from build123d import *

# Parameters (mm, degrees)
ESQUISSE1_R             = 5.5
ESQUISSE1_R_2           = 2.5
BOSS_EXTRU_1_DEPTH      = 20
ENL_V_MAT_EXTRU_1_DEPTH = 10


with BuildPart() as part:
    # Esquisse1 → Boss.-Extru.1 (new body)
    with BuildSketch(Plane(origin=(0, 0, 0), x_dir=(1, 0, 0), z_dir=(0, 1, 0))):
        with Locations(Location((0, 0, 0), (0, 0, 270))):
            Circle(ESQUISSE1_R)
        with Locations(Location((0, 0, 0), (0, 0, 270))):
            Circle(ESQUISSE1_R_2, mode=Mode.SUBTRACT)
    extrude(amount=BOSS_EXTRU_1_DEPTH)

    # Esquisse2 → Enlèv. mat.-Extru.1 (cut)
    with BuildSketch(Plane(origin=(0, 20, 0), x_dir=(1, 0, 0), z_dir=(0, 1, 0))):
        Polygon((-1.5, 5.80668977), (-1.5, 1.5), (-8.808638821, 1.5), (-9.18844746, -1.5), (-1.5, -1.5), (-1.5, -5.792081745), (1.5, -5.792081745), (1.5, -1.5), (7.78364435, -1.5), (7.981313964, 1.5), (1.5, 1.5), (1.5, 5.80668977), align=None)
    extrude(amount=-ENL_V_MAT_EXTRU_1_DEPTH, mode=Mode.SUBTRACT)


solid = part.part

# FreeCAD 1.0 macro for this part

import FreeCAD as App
import Part
import Sketcher

V = App.Vector

doc = App.newDocument("Part")
body = doc.addObject("PartDesign::Body", "Body")

# Sketch on XZ plane
sketch1 = body.newObject("Sketcher::SketchObject", "Sketch")
sketch1.AttachmentSupport = (doc.getObject("XZ_Plane"), [""])
sketch1.MapMode = "FlatFace"
sketch1.addGeometry([
    Part.Circle(V(0, 0, 0), V(0, 0, 1), 5.5),
    Part.Circle(V(0, 0, 0), V(0, 0, 1), 2.5),
], False)
sketch1.addConstraint([
    Sketcher.Constraint("Coincident", 0, 3, -1, 1),
    Sketcher.Constraint("Coincident", 1, 3, -1, 1),
    Sketcher.Constraint("Diameter", 0, 11.0),
    Sketcher.Constraint("Diameter", 1, 5.0),
])
pad1 = body.newObject("PartDesign::Pad", "Pad")
pad1.Profile = sketch1
pad1.Length = 20
pad1.Reversed = True

# Sketch on XZ plane
sketch2 = body.newObject("Sketcher::SketchObject", "Sketch001")
sketch2.AttachmentSupport = (doc.getObject("XZ_Plane"), [""])
sketch2.MapMode = "FlatFace"
sketch2.AttachmentOffset = App.Placement(V(0, 0, -20), App.Rotation())
sketch2.addGeometry([
    Part.LineSegment(V(-1.5, -5.8, 0), V(-1.5, -1.5, 0)),  # 0
    Part.LineSegment(V(-1.5, -1.5, 0), V(-8.8, -1.5, 0)),  # 1
    Part.LineSegment(V(-8.8, -1.5, 0), V(-9.2, 1.5, 0)),  # 2
    Part.LineSegment(V(-9.2, 1.5, 0), V(-1.5, 1.5, 0)),  # 3
    Part.LineSegment(V(-1.5, 1.5, 0), V(-1.5, 5.8, 0)),  # 4
    Part.LineSegment(V(-1.5, 5.8, 0), V(1.5, 5.8, 0)),  # 5
    Part.LineSegment(V(1.5, 5.8, 0), V(1.5, 1.5, 0)),  # 6
    Part.LineSegment(V(1.5, 1.5, 0), V(7.8, 1.5, 0)),  # 7
    Part.LineSegment(V(7.8, 1.5, 0), V(8, -1.5, 0)),  # 8
    Part.LineSegment(V(8, -1.5, 0), V(1.5, -1.5, 0)),  # 9
    Part.LineSegment(V(1.5, -1.5, 0), V(1.5, -5.8, 0)),  # 10
    Part.LineSegment(V(1.5, -5.8, 0), V(-1.5, -5.8, 0)),  # 11
], False)
sketch2.addConstraint([
    Sketcher.Constraint("Coincident", 0, 2, 1, 1),
    Sketcher.Constraint("Coincident", 1, 2, 2, 1),
    Sketcher.Constraint("Coincident", 2, 2, 3, 1),
    Sketcher.Constraint("Coincident", 3, 2, 4, 1),
    Sketcher.Constraint("Coincident", 4, 2, 5, 1),
    Sketcher.Constraint("Coincident", 5, 2, 6, 1),
    Sketcher.Constraint("Coincident", 6, 2, 7, 1),
    Sketcher.Constraint("Coincident", 7, 2, 8, 1),
    Sketcher.Constraint("Coincident", 8, 2, 9, 1),
    Sketcher.Constraint("Coincident", 9, 2, 10, 1),
    Sketcher.Constraint("Coincident", 10, 2, 11, 1),
    Sketcher.Constraint("Coincident", 11, 2, 0, 1),
    Sketcher.Constraint("Vertical", 0),
    Sketcher.Constraint("Horizontal", 1),
    Sketcher.Constraint("Horizontal", 3),
    Sketcher.Constraint("Vertical", 4),
    Sketcher.Constraint("Horizontal", 5),
    Sketcher.Constraint("Vertical", 6),
    Sketcher.Constraint("Horizontal", 7),
    Sketcher.Constraint("Horizontal", 9),
    Sketcher.Constraint("Vertical", 10),
    Sketcher.Constraint("Horizontal", 11),
    Sketcher.Constraint("Symmetric", 0, 2, 6, 2, -1, 1),
    Sketcher.Constraint("Symmetric", 3, 2, 9, 2, -1, 1),
    Sketcher.Constraint("Symmetric", 3, 2, 6, 2, -2),
    Sketcher.Constraint("DistanceX", 5, 1, 5, 2, 3.0),
    Sketcher.Constraint("DistanceY", 1, 2, 2, 2, 3.0),
    Sketcher.Constraint("DistanceX", 1, 2, 1, 1, 7.308639),
    Sketcher.Constraint("DistanceY", 0, 1, 0, 2, 4.30669),
    Sketcher.Constraint("DistanceY", 4, 1, 4, 2, 4.292082),
    Sketcher.Constraint("DistanceX", 3, 1, 3, 2, 7.688447),
    Sketcher.Constraint("DistanceX", 7, 1, 7, 2, 6.283644),
    Sketcher.Constraint("DistanceX", 9, 2, 9, 1, 6.481314),
])
pocket1 = body.newObject("PartDesign::Pocket", "Pocket")
pocket1.Profile = sketch2
pocket1.Length = 10
pocket1.Reversed = True

doc.recompute()
